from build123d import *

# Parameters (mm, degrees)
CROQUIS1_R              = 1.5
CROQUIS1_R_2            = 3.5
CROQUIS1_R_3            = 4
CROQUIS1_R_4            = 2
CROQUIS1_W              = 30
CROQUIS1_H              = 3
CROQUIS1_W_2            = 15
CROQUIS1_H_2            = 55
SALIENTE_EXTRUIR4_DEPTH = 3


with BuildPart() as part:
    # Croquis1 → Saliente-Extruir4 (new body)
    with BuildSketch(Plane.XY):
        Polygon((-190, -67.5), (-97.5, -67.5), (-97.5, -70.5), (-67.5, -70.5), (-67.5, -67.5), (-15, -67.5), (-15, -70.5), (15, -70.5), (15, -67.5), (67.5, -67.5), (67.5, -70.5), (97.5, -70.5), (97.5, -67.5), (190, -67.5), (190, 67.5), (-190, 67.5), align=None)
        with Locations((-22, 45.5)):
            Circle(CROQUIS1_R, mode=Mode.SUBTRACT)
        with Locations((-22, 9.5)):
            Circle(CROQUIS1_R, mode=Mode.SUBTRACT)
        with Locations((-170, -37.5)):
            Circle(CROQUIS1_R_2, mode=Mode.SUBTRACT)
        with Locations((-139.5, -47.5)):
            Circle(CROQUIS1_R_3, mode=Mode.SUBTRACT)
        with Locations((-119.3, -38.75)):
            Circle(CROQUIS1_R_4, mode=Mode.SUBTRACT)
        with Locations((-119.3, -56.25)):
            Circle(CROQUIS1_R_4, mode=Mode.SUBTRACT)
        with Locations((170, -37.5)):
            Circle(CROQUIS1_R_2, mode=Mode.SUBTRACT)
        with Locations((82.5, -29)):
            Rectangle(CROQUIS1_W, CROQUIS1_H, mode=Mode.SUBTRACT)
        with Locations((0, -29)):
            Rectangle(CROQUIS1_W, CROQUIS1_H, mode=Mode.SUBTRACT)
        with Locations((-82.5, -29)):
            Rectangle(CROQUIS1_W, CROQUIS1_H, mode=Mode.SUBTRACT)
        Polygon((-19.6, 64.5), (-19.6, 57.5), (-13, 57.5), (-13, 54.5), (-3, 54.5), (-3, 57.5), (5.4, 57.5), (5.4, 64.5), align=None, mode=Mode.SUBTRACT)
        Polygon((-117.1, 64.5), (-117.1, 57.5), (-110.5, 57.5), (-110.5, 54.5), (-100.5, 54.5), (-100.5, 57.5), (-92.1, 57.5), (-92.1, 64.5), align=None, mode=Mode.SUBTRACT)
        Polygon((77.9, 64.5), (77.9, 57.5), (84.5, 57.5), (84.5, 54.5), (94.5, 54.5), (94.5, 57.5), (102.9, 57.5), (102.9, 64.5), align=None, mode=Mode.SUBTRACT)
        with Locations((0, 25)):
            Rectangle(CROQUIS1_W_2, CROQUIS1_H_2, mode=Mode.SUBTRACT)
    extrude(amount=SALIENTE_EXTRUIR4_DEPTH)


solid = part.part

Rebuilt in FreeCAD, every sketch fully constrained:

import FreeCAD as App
import Part
import Sketcher
from FreeCAD import Vector

doc = App.newDocument("Part")
body = doc.addObject("PartDesign::Body", "Body")

sketch1 = doc.addObject("Sketcher::SketchObject", "Sketch")
body.addObject(sketch1)
sketch1.AttachmentSupport = (doc.XY_Plane, [""])
sketch1.MapMode = "FlatFace"
sketch1.addGeometry(Part.LineSegment(Vector(-190, -67.5, 0), Vector(-97.5, -67.5, 0)), False)
sketch1.addGeometry(Part.LineSegment(Vector(-97.5, -67.5, 0), Vector(-97.5, -70.5, 0)), False)
sketch1.addGeometry(Part.LineSegment(Vector(-97.5, -70.5, 0), Vector(-67.5, -70.5, 0)), False)
sketch1.addGeometry(Part.LineSegment(Vector(-67.5, -70.5, 0), Vector(-67.5, -67.5, 0)), False)
sketch1.addGeometry(Part.LineSegment(Vector(-67.5, -67.5, 0), Vector(-15, -67.5, 0)), False)
sketch1.addGeometry(Part.LineSegment(Vector(-15, -67.5, 0), Vector(-15, -70.5, 0)), False)
sketch1.addGeometry(Part.LineSegment(Vector(-15, -70.5, 0), Vector(15, -70.5, 0)), False)
sketch1.addGeometry(Part.LineSegment(Vector(15, -70.5, 0), Vector(15, -67.5, 0)), False)
sketch1.addGeometry(Part.LineSegment(Vector(15, -67.5, 0), Vector(67.5, -67.5, 0)), False)
sketch1.addGeometry(Part.LineSegment(Vector(67.5, -67.5, 0), Vector(67.5, -70.5, 0)), False)
sketch1.addGeometry(Part.LineSegment(Vector(67.5, -70.5, 0), Vector(97.5, -70.5, 0)), False)
sketch1.addGeometry(Part.LineSegment(Vector(97.5, -70.5, 0), Vector(97.5, -67.5, 0)), False)
sketch1.addGeometry(Part.LineSegment(Vector(97.5, -67.5, 0), Vector(190, -67.5, 0)), False)
sketch1.addGeometry(Part.LineSegment(Vector(190, -67.5, 0), Vector(190, 67.5, 0)), False)
sketch1.addGeometry(Part.LineSegment(Vector(190, 67.5, 0), Vector(-190, 67.5, 0)), False)
sketch1.addGeometry(Part.LineSegment(Vector(-190, 67.5, 0), Vector(-190, -67.5, 0)), False)
sketch1.addGeometry(Part.Circle(Vector(-139.5, -47.5, 0), Vector(0, 0, 1), 4), False)
sketch1.addGeometry(Part.Circle(Vector(-119.3, -56.2, 0), Vector(0, 0, 1), 2), False)
sketch1.addGeometry(Part.Circle(Vector(-170, -37.5, 0), Vector(0, 0, 1), 3.5), False)
sketch1.addGeometry(Part.Circle(Vector(-119.3, -38.8, 0), Vector(0, 0, 1), 2), False)
sketch1.addGeometry(Part.LineSegment(Vector(-67.5, -30.5, 0), Vector(-97.5, -30.5, 0)), False)
sketch1.addGeometry(Part.LineSegment(Vector(-97.5, -30.5, 0), Vector(-97.5, -27.5, 0)), False)
sketch1.addGeometry(Part.LineSegment(Vector(-97.5, -27.5, 0), Vector(-67.5, -27.5, 0)), False)
sketch1.addGeometry(Part.LineSegment(Vector(-67.5, -27.5, 0), Vector(-67.5, -30.5, 0)), False)
sketch1.addGeometry(Part.LineSegment(Vector(15, -30.5, 0), Vector(-15, -30.5, 0)), False)
sketch1.addGeometry(Part.LineSegment(Vector(-15, -30.5, 0), Vector(-15, -27.5, 0)), False)
sketch1.addGeometry(Part.LineSegment(Vector(-15, -27.5, 0), Vector(15, -27.5, 0)), False)
sketch1.addGeometry(Part.LineSegment(Vector(15, -27.5, 0), Vector(15, -30.5, 0)), False)
sketch1.addGeometry(Part.LineSegment(Vector(97.5, -30.5, 0), Vector(67.5, -30.5, 0)), False)
sketch1.addGeometry(Part.LineSegment(Vector(67.5, -30.5, 0), Vector(67.5, -27.5, 0)), False)
sketch1.addGeometry(Part.LineSegment(Vector(67.5, -27.5, 0), Vector(97.5, -27.5, 0)), False)
sketch1.addGeometry(Part.LineSegment(Vector(97.5, -27.5, 0), Vector(97.5, -30.5, 0)), False)
sketch1.addGeometry(Part.Circle(Vector(170, -37.5, 0), Vector(0, 0, 1), 3.5), False)
sketch1.addGeometry(Part.Circle(Vector(-22, 9.5, 0), Vector(0, 0, 1), 1.5), False)
sketch1.addGeometry(Part.LineSegment(Vector(7.5, -2.5, 0), Vector(-7.5, -2.5, 0)), False)
sketch1.addGeometry(Part.LineSegment(Vector(-7.5, -2.5, 0), Vector(-7.5, 52.5, 0)), False)
sketch1.addGeometry(Part.LineSegment(Vector(-7.5, 52.5, 0), Vector(7.5, 52.5, 0)), False)
sketch1.addGeometry(Part.LineSegment(Vector(7.5, 52.5, 0), Vector(7.5, -2.5, 0)), False)
sketch1.addGeometry(Part.LineSegment(Vector(-117.1, 57.5, 0), Vector(-117.1, 64.5, 0)), False)
sketch1.addGeometry(Part.LineSegment(Vector(-117.1, 64.5, 0), Vector(-92.1, 64.5, 0)), False)
sketch1.addGeometry(Part.LineSegment(Vector(-92.1, 64.5, 0), Vector(-92.1, 57.5, 0)), False)
sketch1.addGeometry(Part.LineSegment(Vector(-92.1, 57.5, 0), Vector(-100.5, 57.5, 0)), False)
sketch1.addGeometry(Part.LineSegment(Vector(-100.5, 57.5, 0), Vector(-100.5, 54.5, 0)), False)
sketch1.addGeometry(Part.LineSegment(Vector(-100.5, 54.5, 0), Vector(-110.5, 54.5, 0)), False)
sketch1.addGeometry(Part.LineSegment(Vector(-110.5, 54.5, 0), Vector(-110.5, 57.5, 0)), False)
sketch1.addGeometry(Part.LineSegment(Vector(-110.5, 57.5, 0), Vector(-117.1, 57.5, 0)), False)
sketch1.addGeometry(Part.Circle(Vector(-22, 45.5, 0), Vector(0, 0, 1), 1.5), False)
sketch1.addGeometry(Part.LineSegment(Vector(-19.6, 57.5, 0), Vector(-19.6, 64.5, 0)), False)
sketch1.addGeometry(Part.LineSegment(Vector(-19.6, 64.5, 0), Vector(5.4, 64.5, 0)), False)
sketch1.addGeometry(Part.LineSegment(Vector(5.4, 64.5, 0), Vector(5.4, 57.5, 0)), False)
sketch1.addGeometry(Part.LineSegment(Vector(5.4, 57.5, 0), Vector(-3, 57.5, 0)), False)
sketch1.addGeometry(Part.LineSegment(Vector(-3, 57.5, 0), Vector(-3, 54.5, 0)), False)
sketch1.addGeometry(Part.LineSegment(Vector(-3, 54.5, 0), Vector(-13, 54.5, 0)), False)
sketch1.addGeometry(Part.LineSegment(Vector(-13, 54.5, 0), Vector(-13, 57.5, 0)), False)
sketch1.addGeometry(Part.LineSegment(Vector(-13, 57.5, 0), Vector(-19.6, 57.5, 0)), False)
sketch1.addGeometry(Part.LineSegment(Vector(77.9, 57.5, 0), Vector(77.9, 64.5, 0)), False)
sketch1.addGeometry(Part.LineSegment(Vector(77.9, 64.5, 0), Vector(102.9, 64.5, 0)), False)
sketch1.addGeometry(Part.LineSegment(Vector(102.9, 64.5, 0), Vector(102.9, 57.5, 0)), False)
sketch1.addGeometry(Part.LineSegment(Vector(102.9, 57.5, 0), Vector(94.5, 57.5, 0)), False)
sketch1.addGeometry(Part.LineSegment(Vector(94.5, 57.5, 0), Vector(94.5, 54.5, 0)), False)
sketch1.addGeometry(Part.LineSegment(Vector(94.5, 54.5, 0), Vector(84.5, 54.5, 0)), False)
sketch1.addGeometry(Part.LineSegment(Vector(84.5, 54.5, 0), Vector(84.5, 57.5, 0)), False)
sketch1.addGeometry(Part.LineSegment(Vector(84.5, 57.5, 0), Vector(77.9, 57.5, 0)), False)
sketch1.addConstraint(Sketcher.Constraint("Coincident", 0, 2, 1, 1))
sketch1.addConstraint(Sketcher.Constraint("Coincident", 1, 2, 2, 1))
sketch1.addConstraint(Sketcher.Constraint("Coincident", 2, 2, 3, 1))
sketch1.addConstraint(Sketcher.Constraint("Coincident", 3, 2, 4, 1))
sketch1.addConstraint(Sketcher.Constraint("Coincident", 4, 2, 5, 1))
sketch1.addConstraint(Sketcher.Constraint("Coincident", 5, 2, 6, 1))
sketch1.addConstraint(Sketcher.Constraint("Coincident", 6, 2, 7, 1))
sketch1.addConstraint(Sketcher.Constraint("Coincident", 7, 2, 8, 1))
sketch1.addConstraint(Sketcher.Constraint("Coincident", 8, 2, 9, 1))
sketch1.addConstraint(Sketcher.Constraint("Coincident", 9, 2, 10, 1))
sketch1.addConstraint(Sketcher.Constraint("Coincident", 10, 2, 11, 1))
sketch1.addConstraint(Sketcher.Constraint("Coincident", 11, 2, 12, 1))
sketch1.addConstraint(Sketcher.Constraint("Coincident", 12, 2, 13, 1))
sketch1.addConstraint(Sketcher.Constraint("Coincident", 13, 2, 14, 1))
sketch1.addConstraint(Sketcher.Constraint("Coincident", 14, 2, 15, 1))
sketch1.addConstraint(Sketcher.Constraint("Coincident", 15, 2, 0, 1))
sketch1.addConstraint(Sketcher.Constraint("Coincident", 20, 2, 21, 1))
sketch1.addConstraint(Sketcher.Constraint("Coincident", 21, 2, 22, 1))
sketch1.addConstraint(Sketcher.Constraint("Coincident", 22, 2, 23, 1))
sketch1.addConstraint(Sketcher.Constraint("Coincident", 23, 2, 20, 1))
sketch1.addConstraint(Sketcher.Constraint("Coincident", 24, 2, 25, 1))
sketch1.addConstraint(Sketcher.Constraint("Coincident", 25, 2, 26, 1))
sketch1.addConstraint(Sketcher.Constraint("Coincident", 26, 2, 27, 1))
sketch1.addConstraint(Sketcher.Constraint("Coincident", 27, 2, 24, 1))
sketch1.addConstraint(Sketcher.Constraint("Coincident", 28, 2, 29, 1))
sketch1.addConstraint(Sketcher.Constraint("Coincident", 29, 2, 30, 1))
sketch1.addConstraint(Sketcher.Constraint("Coincident", 30, 2, 31, 1))
sketch1.addConstraint(Sketcher.Constraint("Coincident", 31, 2, 28, 1))
sketch1.addConstraint(Sketcher.Constraint("Coincident", 34, 2, 35, 1))
sketch1.addConstraint(Sketcher.Constraint("Coincident", 35, 2, 36, 1))
sketch1.addConstraint(Sketcher.Constraint("Coincident", 36, 2, 37, 1))
sketch1.addConstraint(Sketcher.Constraint("Coincident", 37, 2, 34, 1))
sketch1.addConstraint(Sketcher.Constraint("Coincident", 38, 2, 39, 1))
sketch1.addConstraint(Sketcher.Constraint("Coincident", 39, 2, 40, 1))
sketch1.addConstraint(Sketcher.Constraint("Coincident", 40, 2, 41, 1))
sketch1.addConstraint(Sketcher.Constraint("Coincident", 41, 2, 42, 1))
sketch1.addConstraint(Sketcher.Constraint("Coincident", 42, 2, 43, 1))
sketch1.addConstraint(Sketcher.Constraint("Coincident", 43, 2, 44, 1))
sketch1.addConstraint(Sketcher.Constraint("Coincident", 44, 2, 45, 1))
sketch1.addConstraint(Sketcher.Constraint("Coincident", 45, 2, 38, 1))
sketch1.addConstraint(Sketcher.Constraint("Coincident", 47, 2, 48, 1))
sketch1.addConstraint(Sketcher.Constraint("Coincident", 48, 2, 49, 1))
sketch1.addConstraint(Sketcher.Constraint("Coincident", 49, 2, 50, 1))
sketch1.addConstraint(Sketcher.Constraint("Coincident", 50, 2, 51, 1))
sketch1.addConstraint(Sketcher.Constraint("Coincident", 51, 2, 52, 1))
sketch1.addConstraint(Sketcher.Constraint("Coincident", 52, 2, 53, 1))
sketch1.addConstraint(Sketcher.Constraint("Coincident", 53, 2, 54, 1))
sketch1.addConstraint(Sketcher.Constraint("Coincident", 54, 2, 47, 1))
sketch1.addConstraint(Sketcher.Constraint("Coincident", 55, 2, 56, 1))
sketch1.addConstraint(Sketcher.Constraint("Coincident", 56, 2, 57, 1))
sketch1.addConstraint(Sketcher.Constraint("Coincident", 57, 2, 58, 1))
sketch1.addConstraint(Sketcher.Constraint("Coincident", 58, 2, 59, 1))
sketch1.addConstraint(Sketcher.Constraint("Coincident", 59, 2, 60, 1))
sketch1.addConstraint(Sketcher.Constraint("Coincident", 60, 2, 61, 1))
sketch1.addConstraint(Sketcher.Constraint("Coincident", 61, 2, 62, 1))
sketch1.addConstraint(Sketcher.Constraint("Coincident", 62, 2, 55, 1))
sketch1.addConstraint(Sketcher.Constraint("Horizontal", 0))
sketch1.addConstraint(Sketcher.Constraint("Vertical", 1))
sketch1.addConstraint(Sketcher.Constraint("Horizontal", 2))
sketch1.addConstraint(Sketcher.Constraint("Vertical", 3))
sketch1.addConstraint(Sketcher.Constraint("Horizontal", 4))
sketch1.addConstraint(Sketcher.Constraint("Vertical", 5))
sketch1.addConstraint(Sketcher.Constraint("Horizontal", 6))
sketch1.addConstraint(Sketcher.Constraint("Vertical", 7))
sketch1.addConstraint(Sketcher.Constraint("Horizontal", 8))
sketch1.addConstraint(Sketcher.Constraint("Vertical", 9))
sketch1.addConstraint(Sketcher.Constraint("Horizontal", 10))
sketch1.addConstraint(Sketcher.Constraint("Vertical", 11))
sketch1.addConstraint(Sketcher.Constraint("Horizontal", 12))
sketch1.addConstraint(Sketcher.Constraint("Vertical", 13))
sketch1.addConstraint(Sketcher.Constraint("Horizontal", 14))
sketch1.addConstraint(Sketcher.Constraint("Vertical", 15))
sketch1.addConstraint(Sketcher.Constraint("Horizontal", 20))
sketch1.addConstraint(Sketcher.Constraint("Vertical", 21))
sketch1.addConstraint(Sketcher.Constraint("Horizontal", 22))
sketch1.addConstraint(Sketcher.Constraint("Vertical", 23))
sketch1.addConstraint(Sketcher.Constraint("Horizontal", 24))
sketch1.addConstraint(Sketcher.Constraint("Vertical", 25))
sketch1.addConstraint(Sketcher.Constraint("Horizontal", 26))
sketch1.addConstraint(Sketcher.Constraint("Vertical", 27))
sketch1.addConstraint(Sketcher.Constraint("Horizontal", 28))
sketch1.addConstraint(Sketcher.Constraint("Vertical", 29))
sketch1.addConstraint(Sketcher.Constraint("Horizontal", 30))
sketch1.addConstraint(Sketcher.Constraint("Vertical", 31))
sketch1.addConstraint(Sketcher.Constraint("Horizontal", 34))
sketch1.addConstraint(Sketcher.Constraint("Vertical", 35))
sketch1.addConstraint(Sketcher.Constraint("Horizontal", 36))
sketch1.addConstraint(Sketcher.Constraint("Vertical", 37))
sketch1.addConstraint(Sketcher.Constraint("Vertical", 38))
sketch1.addConstraint(Sketcher.Constraint("Horizontal", 39))
sketch1.addConstraint(Sketcher.Constraint("Vertical", 40))
sketch1.addConstraint(Sketcher.Constraint("Horizontal", 41))
sketch1.addConstraint(Sketcher.Constraint("Vertical", 42))
sketch1.addConstraint(Sketcher.Constraint("Horizontal", 43))
sketch1.addConstraint(Sketcher.Constraint("Vertical", 44))
sketch1.addConstraint(Sketcher.Constraint("Horizontal", 45))
sketch1.addConstraint(Sketcher.Constraint("Vertical", 47))
sketch1.addConstraint(Sketcher.Constraint("Horizontal", 48))
sketch1.addConstraint(Sketcher.Constraint("Vertical", 49))
sketch1.addConstraint(Sketcher.Constraint("Horizontal", 50))
sketch1.addConstraint(Sketcher.Constraint("Vertical", 51))
sketch1.addConstraint(Sketcher.Constraint("Horizontal", 52))
sketch1.addConstraint(Sketcher.Constraint("Vertical", 53))
sketch1.addConstraint(Sketcher.Constraint("Horizontal", 54))
sketch1.addConstraint(Sketcher.Constraint("Vertical", 55))
sketch1.addConstraint(Sketcher.Constraint("Horizontal", 56))
sketch1.addConstraint(Sketcher.Constraint("Vertical", 57))
sketch1.addConstraint(Sketcher.Constraint("Horizontal", 58))
sketch1.addConstraint(Sketcher.Constraint("Vertical", 59))
sketch1.addConstraint(Sketcher.Constraint("Horizontal", 60))
sketch1.addConstraint(Sketcher.Constraint("Vertical", 61))
sketch1.addConstraint(Sketcher.Constraint("Horizontal", 62))
sketch1.addConstraint(Sketcher.Constraint("Equal", 17, 19))
sketch1.addConstraint(Sketcher.Constraint("Equal", 18, 32))
sketch1.addConstraint(Sketcher.Constraint("Equal", 33, 46))
sketch1.addConstraint(Sketcher.Constraint("Symmetric", 12, 2, 14, 2, -1, 1))
sketch1.addConstraint(Sketcher.Constraint("Symmetric", 18, 3, 32, 3, -2))
sketch1.addConstraint(Sketcher.Constraint("Symmetric", 4, 2, 7, 2, -2))
sketch1.addConstraint(Sketcher.Constraint("Symmetric", 2, 2, 9, 2, -2))
sketch1.addConstraint(Sketcher.Constraint("Symmetric", 0, 2, 11, 2, -2))
sketch1.addConstraint(Sketcher.Constraint("Symmetric", 23, 2, 28, 2, -2))
sketch1.addConstraint(Sketcher.Constraint("Symmetric", 21, 2, 30, 2, -2))
sketch1.addConstraint(Sketcher.Constraint("Horizontal", 0, 2, 3, 2))
sketch1.addConstraint(Sketcher.Constraint("Horizontal", 2, 2, 5, 2))
sketch1.addConstraint(Sketcher.Constraint("Horizontal", 23, 2, 24, 2))
sketch1.addConstraint(Sketcher.Constraint("Horizontal", 22, 2, 25, 2))
sketch1.addConstraint(Sketcher.Constraint("Horizontal", 41, 2, 44, 2))
sketch1.addConstraint(Sketcher.Constraint("Horizontal", 39, 2, 47, 2))
sketch1.addConstraint(Sketcher.Constraint("Horizontal", 45, 2, 49, 2))
sketch1.addConstraint(Sketcher.Constraint("Horizontal", 43, 2, 51, 2))
sketch1.addConstraint(Sketcher.Constraint("Horizontal", 50, 2, 53, 2))
sketch1.addConstraint(Sketcher.Constraint("Horizontal", 48, 2, 55, 2))
sketch1.addConstraint(Sketcher.Constraint("Horizontal", 54, 2, 57, 2))
sketch1.addConstraint(Sketcher.Constraint("Horizontal", 52, 2, 59, 2))
sketch1.addConstraint(Sketcher.Constraint("Horizontal", 58, 2, 61, 2))
sketch1.addConstraint(Sketcher.Constraint("Vertical", 17, 3, 19, 3))
sketch1.addConstraint(Sketcher.Constraint("Vertical", 33, 3, 46, 3))
sketch1.addConstraint(Sketcher.Constraint("Vertical", 1, 2, 20, 2))
sketch1.addConstraint(Sketcher.Constraint("Vertical", 3, 2, 22, 2))
sketch1.addConstraint(Sketcher.Constraint("Vertical", 5, 2, 24, 2))
sketch1.addConstraint(Sketcher.Constraint("Vertical", 7, 2, 26, 2))
sketch1.addConstraint(Sketcher.Constraint("Equal", 2, 6))
sketch1.addConstraint(Sketcher.Constraint("Equal", 39, 48))
sketch1.addConstraint(Sketcher.Constraint("Equal", 41, 50))
sketch1.addConstraint(Sketcher.Constraint("Equal", 43, 52))
sketch1.addConstraint(Sketcher.Constraint("Equal", 48, 56))
sketch1.addConstraint(Sketcher.Constraint("Equal", 50, 58))
sketch1.addConstraint(Sketcher.Constraint("Equal", 52, 60))
sketch1.addConstraint(Sketcher.Constraint("Equal", 11, 21))
sketch1.addConstraint(Sketcher.Constraint("Equal", 31, 42))
sketch1.addConstraint(Sketcher.Constraint("Diameter", 16, 8.0))
sketch1.addConstraint(Sketcher.Constraint("Diameter", 17, 4.0))
sketch1.addConstraint(Sketcher.Constraint("Diameter", 18, 7.0))
sketch1.addConstraint(Sketcher.Constraint("Diameter", 33, 3.0))
sketch1.addConstraint(Sketcher.Constraint("DistanceX", 2, 1, 2, 2, 30.0))
sketch1.addConstraint(Sketcher.Constraint("DistanceX", 14, 2, 14, 1, 380.0))
sketch1.addConstraint(Sketcher.Constraint("DistanceX", 34, 2, 34, 1, 15.0))
sketch1.addConstraint(Sketcher.Constraint("DistanceX", 39, 1, 39, 2, 25.0))
sketch1.addConstraint(Sketcher.Constraint("DistanceX", 43, 2, 43, 1, 10.0))
sketch1.addConstraint(Sketcher.Constraint("DistanceY", 1, 2, 1, 1, 3.0))
sketch1.addConstraint(Sketcher.Constraint("DistanceY", 13, 1, 13, 2, 135.0))
sketch1.addConstraint(Sketcher.Constraint("DistanceY", 35, 1, 35, 2, 55.0))
sketch1.addConstraint(Sketcher.Constraint("DistanceY", 38, 1, 38, 2, 7.0))
sketch1.addConstraint(Sketcher.Constraint("DistanceX", 0, 1, 0, 2, 92.5))
sketch1.addConstraint(Sketcher.Constraint("DistanceX", 41, 2, 41, 1, 8.4))
sketch1.addConstraint(Sketcher.Constraint("DistanceX", 18, 3, -1, 1, 170.0))
sketch1.addConstraint(Sketcher.Constraint("DistanceX", 33, 3, -1, 1, 22.0))
sketch1.addConstraint(Sketcher.Constraint("DistanceX", 50, 2, -1, 1, 3.0))
sketch1.addConstraint(Sketcher.Constraint("DistanceX", 16, 3, -1, 1, 139.5))
sketch1.addConstraint(Sketcher.Constraint("DistanceY", 16, 3, -1, 1, 47.5))
sketch1.addConstraint(Sketcher.Constraint("DistanceX", 17, 3, -1, 1, 119.3))
sketch1.addConstraint(Sketcher.Constraint("DistanceY", 18, 3, -1, 1, 37.5))
sketch1.addConstraint(Sketcher.Constraint("DistanceY", -1, 1, 33, 3, 9.5))
sketch1.addConstraint(Sketcher.Constraint("DistanceY", -1, 1, 46, 3, 45.5))
sketch1.addConstraint(Sketcher.Constraint("DistanceY", 20, 2, -1, 1, 30.5))
sketch1.addConstraint(Sketcher.Constraint("DistanceX", 34, 2, -1, 1, 7.5))
sketch1.addConstraint(Sketcher.Constraint("DistanceY", 34, 2, -1, 1, 2.5))
sketch1.addConstraint(Sketcher.Constraint("DistanceX", 38, 2, -1, 1, 117.1))
sketch1.addConstraint(Sketcher.Constraint("DistanceY", -1, 1, 38, 2, 64.5))
sketch1.addConstraint(Sketcher.Constraint("DistanceX", -1, 1, 55, 2, 77.9))
sketch1.addConstraint(Sketcher.Constraint("DistanceY", 17, 3, -1, 1, 56.25))
sketch1.addConstraint(Sketcher.Constraint("DistanceY", 19, 3, -1, 1, 38.75))
pad1 = doc.addObject("PartDesign::Pad", "Pad")
body.addObject(pad1)
pad1.Profile = sketch1
pad1.Length = 3

doc.recompute()
